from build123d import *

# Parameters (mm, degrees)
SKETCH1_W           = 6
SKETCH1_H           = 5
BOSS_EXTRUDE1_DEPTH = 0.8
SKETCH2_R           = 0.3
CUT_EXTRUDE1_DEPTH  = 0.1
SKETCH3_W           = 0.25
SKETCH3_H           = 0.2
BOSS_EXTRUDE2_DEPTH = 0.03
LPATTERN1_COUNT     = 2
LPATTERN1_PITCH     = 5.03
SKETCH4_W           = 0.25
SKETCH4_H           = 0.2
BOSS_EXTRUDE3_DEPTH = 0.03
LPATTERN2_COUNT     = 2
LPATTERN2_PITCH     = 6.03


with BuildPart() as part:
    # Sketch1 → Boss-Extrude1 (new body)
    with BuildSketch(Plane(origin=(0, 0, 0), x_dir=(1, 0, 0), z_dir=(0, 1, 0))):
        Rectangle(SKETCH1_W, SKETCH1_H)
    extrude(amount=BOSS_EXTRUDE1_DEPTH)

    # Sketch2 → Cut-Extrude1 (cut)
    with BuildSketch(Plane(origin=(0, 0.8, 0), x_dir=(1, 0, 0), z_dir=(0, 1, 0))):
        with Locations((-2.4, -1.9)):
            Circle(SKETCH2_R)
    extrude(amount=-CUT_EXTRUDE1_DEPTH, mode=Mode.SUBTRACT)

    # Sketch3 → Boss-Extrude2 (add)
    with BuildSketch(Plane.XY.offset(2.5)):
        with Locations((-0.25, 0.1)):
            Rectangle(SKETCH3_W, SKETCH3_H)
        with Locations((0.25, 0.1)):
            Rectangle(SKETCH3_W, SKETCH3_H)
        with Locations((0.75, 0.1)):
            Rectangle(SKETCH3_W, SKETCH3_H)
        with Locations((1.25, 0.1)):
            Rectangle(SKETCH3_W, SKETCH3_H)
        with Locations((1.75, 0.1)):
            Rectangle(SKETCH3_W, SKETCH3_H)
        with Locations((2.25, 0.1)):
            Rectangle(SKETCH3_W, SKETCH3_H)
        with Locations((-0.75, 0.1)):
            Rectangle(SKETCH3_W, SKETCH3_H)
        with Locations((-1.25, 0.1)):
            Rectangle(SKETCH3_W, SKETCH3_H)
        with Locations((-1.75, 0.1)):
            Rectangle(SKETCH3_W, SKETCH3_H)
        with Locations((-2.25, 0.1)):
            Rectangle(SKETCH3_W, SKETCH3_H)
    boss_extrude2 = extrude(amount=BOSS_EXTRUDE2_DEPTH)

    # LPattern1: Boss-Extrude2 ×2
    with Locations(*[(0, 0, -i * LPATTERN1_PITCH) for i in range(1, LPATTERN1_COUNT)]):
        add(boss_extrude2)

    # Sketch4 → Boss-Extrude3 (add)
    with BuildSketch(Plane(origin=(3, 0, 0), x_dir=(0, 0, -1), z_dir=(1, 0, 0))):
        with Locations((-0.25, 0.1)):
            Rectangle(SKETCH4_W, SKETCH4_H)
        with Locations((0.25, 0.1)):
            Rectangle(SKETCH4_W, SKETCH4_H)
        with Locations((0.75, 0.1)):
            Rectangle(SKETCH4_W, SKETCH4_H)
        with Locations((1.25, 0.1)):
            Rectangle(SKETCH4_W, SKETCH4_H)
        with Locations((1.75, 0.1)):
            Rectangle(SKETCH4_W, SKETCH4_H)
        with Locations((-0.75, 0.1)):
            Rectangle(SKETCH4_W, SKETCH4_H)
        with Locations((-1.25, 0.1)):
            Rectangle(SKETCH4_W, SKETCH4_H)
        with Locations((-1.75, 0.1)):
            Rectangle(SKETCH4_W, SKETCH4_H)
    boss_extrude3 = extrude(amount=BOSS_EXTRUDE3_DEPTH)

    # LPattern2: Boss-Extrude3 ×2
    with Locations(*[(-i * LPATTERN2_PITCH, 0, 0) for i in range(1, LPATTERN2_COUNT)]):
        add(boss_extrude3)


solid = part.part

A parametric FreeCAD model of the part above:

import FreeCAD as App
import Part
import Sketcher

doc = App.newDocument("Part")
body = doc.addObject("PartDesign::Body", "Body")

# Sketch on XZ plane
sketch1 = body.newObject("Sketcher::SketchObject", "Sketch")
sketch1.AttachmentSupport = (doc.getObject("XZ_Plane"), [""])
sketch1.MapMode = "FlatFace"
sketch1.addGeometry([
    Part.LineSegment(App.Vector(-3, -2, 0), App.Vector(-3, 2, 0)),
    Part.LineSegment(App.Vector(-3, 2, 0), App.Vector(3, 2, 0)),
    Part.LineSegment(App.Vector(3, 2, 0), App.Vector(3, -2, 0)),
    Part.LineSegment(App.Vector(3, -2, 0), App.Vector(-3, -2, 0)),
], False)
sketch1.addConstraint([
    Sketcher.Constraint("Coincident", 0, 2, 1, 1),
    Sketcher.Constraint("Coincident", 1, 2, 2, 1),
    Sketcher.Constraint("Coincident", 2, 2, 3, 1),
    Sketcher.Constraint("Coincident", 3, 2, 0, 1),
    Sketcher.Constraint("Vertical", 0),
    Sketcher.Constraint("Horizontal", 1),
    Sketcher.Constraint("Vertical", 2),
    Sketcher.Constraint("Horizontal", 3),
    Sketcher.Constraint("Symmetric", 0, 2, 2, 2, -1, 1),
    Sketcher.Constraint("DistanceX", 1, 1, 1, 2, 6.0),
    Sketcher.Constraint("DistanceY", 0, 1, 0, 2, 5.0),
])
pad1 = body.newObject("PartDesign::Pad", "Pad")
pad1.Profile = sketch1
pad1.Length = 0.8
pad1.Reversed = True

# Sketch on XZ plane
sketch2 = body.newObject("Sketcher::SketchObject", "Sketch001")
sketch2.AttachmentSupport = (doc.getObject("XZ_Plane"), [""])
sketch2.MapMode = "FlatFace"
sketch2.AttachmentOffset = App.Placement(App.Vector(0, 0, -0.8), App.Rotation())
sketch2.addGeometry(Part.Circle(App.Vector(-2.4, 1.9, 0), App.Vector(0, 0, 1), 0.3), False)
sketch2.addConstraint([
    Sketcher.Constraint("Diameter", 0, 0.6),
    Sketcher.Constraint("DistanceX", 0, 3, -1, 1, 2.4),
    Sketcher.Constraint("DistanceY", -1, 1, 0, 3, 1.9),
])
pocket1 = body.newObject("PartDesign::Pocket", "Pocket")
pocket1.Profile = sketch2
pocket1.Length = 0.1
pocket1.Reversed = True

# Sketch on XY plane
sketch3 = body.newObject("Sketcher::SketchObject", "Sketch002")
sketch3.AttachmentSupport = (doc.getObject("XY_Plane"), [""])
sketch3.MapMode = "FlatFace"
sketch3.AttachmentOffset = App.Placement(App.Vector(0, 0, 2.5), App.Rotation())
sketch3.addGeometry([
    Part.LineSegment(App.Vector(-0.38, 0.2, 0), App.Vector(-0.38, 0, 0)),  # 0
    Part.LineSegment(App.Vector(-0.38, 0, 0), App.Vector(-0.12, 0, 0)),  # 1
    Part.LineSegment(App.Vector(-0.12, 0, 0), App.Vector(-0.12, 0.2, 0)),  # 2
    Part.LineSegment(App.Vector(-0.12, 0.2, 0), App.Vector(-0.38, 0.2, 0)),  # 3
    Part.LineSegment(App.Vector(0.12, 0.2, 0), App.Vector(0.12, 0, 0)),  # 4
    Part.LineSegment(App.Vector(0.12, 0, 0), App.Vector(0.38, 0, 0)),  # 5
    Part.LineSegment(App.Vector(0.38, 0, 0), App.Vector(0.38, 0.2, 0)),  # 6
    Part.LineSegment(App.Vector(0.38, 0.2, 0), App.Vector(0.12, 0.2, 0)),  # 7
    Part.LineSegment(App.Vector(0.62, 0.2, 0), App.Vector(0.62, 0, 0)),  # 8
    Part.LineSegment(App.Vector(0.62, 0, 0), App.Vector(0.88, 0, 0)),  # 9
    Part.LineSegment(App.Vector(0.88, 0, 0), App.Vector(0.88, 0.2, 0)),  # 10
    Part.LineSegment(App.Vector(0.88, 0.2, 0), App.Vector(0.62, 0.2, 0)),  # 11
    Part.LineSegment(App.Vector(1.12, 0.2, 0), App.Vector(1.12, 0, 0)),  # 12
    Part.LineSegment(App.Vector(1.12, 0, 0), App.Vector(1.38, 0, 0)),  # 13
    Part.LineSegment(App.Vector(1.38, 0, 0), App.Vector(1.38, 0.2, 0)),  # 14
    Part.LineSegment(App.Vector(1.38, 0.2, 0), App.Vector(1.12, 0.2, 0)),  # 15
    Part.LineSegment(App.Vector(1.62, 0.2, 0), App.Vector(1.62, 0, 0)),  # 16
    Part.LineSegment(App.Vector(1.62, 0, 0), App.Vector(1.88, 0, 0)),  # 17
    Part.LineSegment(App.Vector(1.88, 0, 0), App.Vector(1.88, 0.2, 0)),  # 18
    Part.LineSegment(App.Vector(1.88, 0.2, 0), App.Vector(1.62, 0.2, 0)),  # 19
    Part.LineSegment(App.Vector(2.12, 0.2, 0), App.Vector(2.12, 0, 0)),  # 20
    Part.LineSegment(App.Vector(2.12, 0, 0), App.Vector(2.38, 0, 0)),  # 21
    Part.LineSegment(App.Vector(2.38, 0, 0), App.Vector(2.38, 0.2, 0)),  # 22
    Part.LineSegment(App.Vector(2.38, 0.2, 0), App.Vector(2.12, 0.2, 0)),  # 23
    Part.LineSegment(App.Vector(-0.88, 0.2, 0), App.Vector(-0.88, 0, 0)),  # 24
    Part.LineSegment(App.Vector(-0.88, 0, 0), App.Vector(-0.62, 0, 0)),  # 25
    Part.LineSegment(App.Vector(-0.62, 0, 0), App.Vector(-0.62, 0.2, 0)),  # 26
    Part.LineSegment(App.Vector(-0.62, 0.2, 0), App.Vector(-0.88, 0.2, 0)),  # 27
    Part.LineSegment(App.Vector(-1.38, 0.2, 0), App.Vector(-1.38, 0, 0)),  # 28
    Part.LineSegment(App.Vector(-1.38, 0, 0), App.Vector(-1.12, 0, 0)),  # 29
    Part.LineSegment(App.Vector(-1.12, 0, 0), App.Vector(-1.12, 0.2, 0)),  # 30
    Part.LineSegment(App.Vector(-1.12, 0.2, 0), App.Vector(-1.38, 0.2, 0)),  # 31
    Part.LineSegment(App.Vector(-1.88, 0.2, 0), App.Vector(-1.88, 0, 0)),  # 32
    Part.LineSegment(App.Vector(-1.88, 0, 0), App.Vector(-1.62, 0, 0)),  # 33
    Part.LineSegment(App.Vector(-1.62, 0, 0), App.Vector(-1.62, 0.2, 0)),  # 34
    Part.LineSegment(App.Vector(-1.62, 0.2, 0), App.Vector(-1.88, 0.2, 0)),  # 35
    Part.LineSegment(App.Vector(-2.38, 0.2, 0), App.Vector(-2.38, 0, 0)),  # 36
    Part.LineSegment(App.Vector(-2.38, 0, 0), App.Vector(-2.12, 0, 0)),  # 37
    Part.LineSegment(App.Vector(-2.12, 0, 0), App.Vector(-2.12, 0.2, 0)),  # 38
    Part.LineSegment(App.Vector(-2.12, 0.2, 0), App.Vector(-2.38, 0.2, 0)),  # 39
], False)
sketch3.addConstraint([
    Sketcher.Constraint("Coincident", 0, 2, 1, 1),
    Sketcher.Constraint("Coincident", 1, 2, 2, 1),
    Sketcher.Constraint("Coincident", 2, 2, 3, 1),
    Sketcher.Constraint("Coincident", 3, 2, 0, 1),
    Sketcher.Constraint("Coincident", 4, 2, 5, 1),
    Sketcher.Constraint("Coincident", 5, 2, 6, 1),
    Sketcher.Constraint("Coincident", 6, 2, 7, 1),
    Sketcher.Constraint("Coincident", 7, 2, 4, 1),
    Sketcher.Constraint("Coincident", 8, 2, 9, 1),
    Sketcher.Constraint("Coincident", 9, 2, 10, 1),
    Sketcher.Constraint("Coincident", 10, 2, 11, 1),
    Sketcher.Constraint("Coincident", 11, 2, 8, 1),
    Sketcher.Constraint("Coincident", 12, 2, 13, 1),
    Sketcher.Constraint("Coincident", 13, 2, 14, 1),
    Sketcher.Constraint("Coincident", 14, 2, 15, 1),
    Sketcher.Constraint("Coincident", 15, 2, 12, 1),
    Sketcher.Constraint("Coincident", 16, 2, 17, 1),
    Sketcher.Constraint("Coincident", 17, 2, 18, 1),
    Sketcher.Constraint("Coincident", 18, 2, 19, 1),
    Sketcher.Constraint("Coincident", 19, 2, 16, 1),
    Sketcher.Constraint("Coincident", 20, 2, 21, 1),
    Sketcher.Constraint("Coincident", 21, 2, 22, 1),
    Sketcher.Constraint("Coincident", 22, 2, 23, 1),
    Sketcher.Constraint("Coincident", 23, 2, 20, 1),
    Sketcher.Constraint("Coincident", 24, 2, 25, 1),
    Sketcher.Constraint("Coincident", 25, 2, 26, 1),
    Sketcher.Constraint("Coincident", 26, 2, 27, 1),
    Sketcher.Constraint("Coincident", 27, 2, 24, 1),
    Sketcher.Constraint("Coincident", 28, 2, 29, 1),
    Sketcher.Constraint("Coincident", 29, 2, 30, 1),
    Sketcher.Constraint("Coincident", 30, 2, 31, 1),
    Sketcher.Constraint("Coincident", 31, 2, 28, 1),
    Sketcher.Constraint("Coincident", 32, 2, 33, 1),
    Sketcher.Constraint("Coincident", 33, 2, 34, 1),
    Sketcher.Constraint("Coincident", 34, 2, 35, 1),
    Sketcher.Constraint("Coincident", 35, 2, 32, 1),
    Sketcher.Constraint("Coincident", 36, 2, 37, 1),
    Sketcher.Constraint("Coincident", 37, 2, 38, 1),
    Sketcher.Constraint("Coincident", 38, 2, 39, 1),
    Sketcher.Constraint("Coincident", 39, 2, 36, 1),
    Sketcher.Constraint("Vertical", 0),
    Sketcher.Constraint("Horizontal", 1),
    Sketcher.Constraint("Vertical", 2),
    Sketcher.Constraint("Horizontal", 3),
    Sketcher.Constraint("Vertical", 4),
    Sketcher.Constraint("Horizontal", 5),
    Sketcher.Constraint("Vertical", 6),
    Sketcher.Constraint("Horizontal", 7),
    Sketcher.Constraint("Vertical", 8),
    Sketcher.Constraint("Horizontal", 9),
    Sketcher.Constraint("Vertical", 10),
    Sketcher.Constraint("Horizontal", 11),
    Sketcher.Constraint("Vertical", 12),
    Sketcher.Constraint("Horizontal", 13),
    Sketcher.Constraint("Vertical", 14),
    Sketcher.Constraint("Horizontal", 15),
    Sketcher.Constraint("Vertical", 16),
    Sketcher.Constraint("Horizontal", 17),
    Sketcher.Constraint("Vertical", 18),
    Sketcher.Constraint("Horizontal", 19),
    Sketcher.Constraint("Vertical", 20),
    Sketcher.Constraint("Horizontal", 21),
    Sketcher.Constraint("Vertical", 22),
    Sketcher.Constraint("Horizontal", 23),
    Sketcher.Constraint("Vertical", 24),
    Sketcher.Constraint("Horizontal", 25),
    Sketcher.Constraint("Vertical", 26),
    Sketcher.Constraint("Horizontal", 27),
    Sketcher.Constraint("Vertical", 28),
    Sketcher.Constraint("Horizontal", 29),
    Sketcher.Constraint("Vertical", 30),
    Sketcher.Constraint("Horizontal", 31),
    Sketcher.Constraint("Vertical", 32),
    Sketcher.Constraint("Horizontal", 33),
    Sketcher.Constraint("Vertical", 34),
    Sketcher.Constraint("Horizontal", 35),
    Sketcher.Constraint("Vertical", 36),
    Sketcher.Constraint("Horizontal", 37),
    Sketcher.Constraint("Vertical", 38),
    Sketcher.Constraint("Horizontal", 39),
    Sketcher.Constraint("Symmetric", 1, 2, 4, 2, -1, 1),
    Sketcher.Constraint("Symmetric", 9, 2, 24, 2, -1, 1),
    Sketcher.Constraint("Symmetric", 13, 2, 28, 2, -1, 1),
    Sketcher.Constraint("Symmetric", 17, 2, 32, 2, -1, 1),
    Sketcher.Constraint("Symmetric", 21, 2, 36, 2, -1, 1),
    Sketcher.Constraint("Symmetric", 0, 2, 5, 2, -2),
    Sketcher.Constraint("Symmetric", 8, 2, 25, 2, -2),
    Sketcher.Constraint("Symmetric", 12, 2, 29, 2, -2),
    Sketcher.Constraint("Symmetric", 16, 2, 33, 2, -2),
    Sketcher.Constraint("Symmetric", 20, 2, 37, 2, -2),
    Sketcher.Constraint("Horizontal", 3, 2, 6, 2),
    Sketcher.Constraint("Horizontal", 7, 2, 10, 2),
    Sketcher.Constraint("Horizontal", 11, 2, 14, 2),
    Sketcher.Constraint("Horizontal", 15, 2, 18, 2),
    Sketcher.Constraint("Horizontal", 19, 2, 22, 2),
    Sketcher.Constraint("Horizontal", 23, 2, 26, 2),
    Sketcher.Constraint("Horizontal", 27, 2, 30, 2),
    Sketcher.Constraint("Horizontal", 31, 2, 34, 2),
    Sketcher.Constraint("Horizontal", 35, 2, 38, 2),
    Sketcher.Constraint("Equal", 7, 9),
    Sketcher.Constraint("Equal", 11, 13),
    Sketcher.Constraint("Equal", 15, 17),
    Sketcher.Constraint("Equal", 19, 21),
    Sketcher.Constraint("DistanceY", 0, 2, 0, 1, 0.2),
    Sketcher.Constraint("DistanceX", 24, 2, 4, 2, 1.0),
    Sketcher.Constraint("DistanceX", 28, 2, 0, 2, 1.0),
    Sketcher.Constraint("DistanceX", 32, 2, 24, 2, 1.0),
    Sketcher.Constraint("DistanceX", 36, 2, 28, 2, 1.0),
    Sketcher.Constraint("DistanceX", 1, 1, 1, 2, 0.25),
    Sketcher.Constraint("DistanceX", 0, 2, 4, 2, 0.5),
])
pad2 = body.newObject("PartDesign::Pad", "Pad001")
pad2.Profile = sketch3
pad2.Length = 0.03
doc.recompute()

linearpattern = body.newObject("PartDesign::LinearPattern", "LinearPattern")
linearpattern.Originals = [pad2]
linearpattern.Direction = (doc.getObject("Z_Axis"), [""])
linearpattern.Mode = "offset"
linearpattern.Offset = 5.03
linearpattern.Occurrences = 2
linearpattern.Reversed = True
body.Tip = linearpattern

# Sketch on YZ plane
sketch4 = body.newObject("Sketcher::SketchObject", "Sketch003")
sketch4.AttachmentSupport = (doc.getObject("YZ_Plane"), [""])
sketch4.MapMode = "FlatFace"
sketch4.AttachmentOffset = App.Placement(App.Vector(0, 0, 3), App.Rotation())
sketch4.addGeometry([
    Part.LineSegment(App.Vector(0.2, 0.38, 0), App.Vector(0, 0.38, 0)),  # 0
    Part.LineSegment(App.Vector(0, 0.38, 0), App.Vector(0, 0.12, 0)),  # 1
    Part.LineSegment(App.Vector(0, 0.12, 0), App.Vector(0.2, 0.12, 0)),  # 2
    Part.LineSegment(App.Vector(0.2, 0.12, 0), App.Vector(0.2, 0.38, 0)),  # 3
    Part.LineSegment(App.Vector(0.2, -0.12, 0), App.Vector(0, -0.12, 0)),  # 4
    Part.LineSegment(App.Vector(0, -0.12, 0), App.Vector(0, -0.38, 0)),  # 5
    Part.LineSegment(App.Vector(0, -0.38, 0), App.Vector(0.2, -0.38, 0)),  # 6
    Part.LineSegment(App.Vector(0.2, -0.38, 0), App.Vector(0.2, -0.12, 0)),  # 7
    Part.LineSegment(App.Vector(0.2, -0.62, 0), App.Vector(0, -0.62, 0)),  # 8
    Part.LineSegment(App.Vector(0, -0.62, 0), App.Vector(0, -0.88, 0)),  # 9
    Part.LineSegment(App.Vector(0, -0.88, 0), App.Vector(0.2, -0.88, 0)),  # 10
    Part.LineSegment(App.Vector(0.2, -0.88, 0), App.Vector(0.2, -0.62, 0)),  # 11
    Part.LineSegment(App.Vector(0.2, -1.12, 0), App.Vector(0, -1.12, 0)),  # 12
    Part.LineSegment(App.Vector(0, -1.12, 0), App.Vector(0, -1.38, 0)),  # 13
    Part.LineSegment(App.Vector(0, -1.38, 0), App.Vector(0.2, -1.38, 0)),  # 14
    Part.LineSegment(App.Vector(0.2, -1.38, 0), App.Vector(0.2, -1.12, 0)),  # 15
    Part.LineSegment(App.Vector(0.2, -1.62, 0), App.Vector(0, -1.62, 0)),  # 16
    Part.LineSegment(App.Vector(0, -1.62, 0), App.Vector(0, -1.88, 0)),  # 17
    Part.LineSegment(App.Vector(0, -1.88, 0), App.Vector(0.2, -1.88, 0)),  # 18
    Part.LineSegment(App.Vector(0.2, -1.88, 0), App.Vector(0.2, -1.62, 0)),  # 19
    Part.LineSegment(App.Vector(0.2, 0.88, 0), App.Vector(0, 0.88, 0)),  # 20
    Part.LineSegment(App.Vector(0, 0.88, 0), App.Vector(0, 0.62, 0)),  # 21
    Part.LineSegment(App.Vector(0, 0.62, 0), App.Vector(0.2, 0.62, 0)),  # 22
    Part.LineSegment(App.Vector(0.2, 0.62, 0), App.Vector(0.2, 0.88, 0)),  # 23
    Part.LineSegment(App.Vector(0.2, 1.38, 0), App.Vector(0, 1.38, 0)),  # 24
    Part.LineSegment(App.Vector(0, 1.38, 0), App.Vector(0, 1.12, 0)),  # 25
    Part.LineSegment(App.Vector(0, 1.12, 0), App.Vector(0.2, 1.12, 0)),  # 26
    Part.LineSegment(App.Vector(0.2, 1.12, 0), App.Vector(0.2, 1.38, 0)),  # 27
    Part.LineSegment(App.Vector(0.2, 1.88, 0), App.Vector(0, 1.88, 0)),  # 28
    Part.LineSegment(App.Vector(0, 1.88, 0), App.Vector(0, 1.62, 0)),  # 29
    Part.LineSegment(App.Vector(0, 1.62, 0), App.Vector(0.2, 1.62, 0)),  # 30
    Part.LineSegment(App.Vector(0.2, 1.62, 0), App.Vector(0.2, 1.88, 0)),  # 31
], False)
sketch4.addConstraint([
    Sketcher.Constraint("Coincident", 0, 2, 1, 1),
    Sketcher.Constraint("Coincident", 1, 2, 2, 1),
    Sketcher.Constraint("Coincident", 2, 2, 3, 1),
    Sketcher.Constraint("Coincident", 3, 2, 0, 1),
    Sketcher.Constraint("Coincident", 4, 2, 5, 1),
    Sketcher.Constraint("Coincident", 5, 2, 6, 1),
    Sketcher.Constraint("Coincident", 6, 2, 7, 1),
    Sketcher.Constraint("Coincident", 7, 2, 4, 1),
    Sketcher.Constraint("Coincident", 8, 2, 9, 1),
    Sketcher.Constraint("Coincident", 9, 2, 10, 1),
    Sketcher.Constraint("Coincident", 10, 2, 11, 1),
    Sketcher.Constraint("Coincident", 11, 2, 8, 1),
    Sketcher.Constraint("Coincident", 12, 2, 13, 1),
    Sketcher.Constraint("Coincident", 13, 2, 14, 1),
    Sketcher.Constraint("Coincident", 14, 2, 15, 1),
    Sketcher.Constraint("Coincident", 15, 2, 12, 1),
    Sketcher.Constraint("Coincident", 16, 2, 17, 1),
    Sketcher.Constraint("Coincident", 17, 2, 18, 1),
    Sketcher.Constraint("Coincident", 18, 2, 19, 1),
    Sketcher.Constraint("Coincident", 19, 2, 16, 1),
    Sketcher.Constraint("Coincident", 20, 2, 21, 1),
    Sketcher.Constraint("Coincident", 21, 2, 22, 1),
    Sketcher.Constraint("Coincident", 22, 2, 23, 1),
    Sketcher.Constraint("Coincident", 23, 2, 20, 1),
    Sketcher.Constraint("Coincident", 24, 2, 25, 1),
    Sketcher.Constraint("Coincident", 25, 2, 26, 1),
    Sketcher.Constraint("Coincident", 26, 2, 27, 1),
    Sketcher.Constraint("Coincident", 27, 2, 24, 1),
    Sketcher.Constraint("Coincident", 28, 2, 29, 1),
    Sketcher.Constraint("Coincident", 29, 2, 30, 1),
    Sketcher.Constraint("Coincident", 30, 2, 31, 1),
    Sketcher.Constraint("Coincident", 31, 2, 28, 1),
    Sketcher.Constraint("Horizontal", 0),
    Sketcher.Constraint("Vertical", 1),
    Sketcher.Constraint("Horizontal", 2),
    Sketcher.Constraint("Vertical", 3),
    Sketcher.Constraint("Horizontal", 4),
    Sketcher.Constraint("Vertical", 5),
    Sketcher.Constraint("Horizontal", 6),
    Sketcher.Constraint("Vertical", 7),
    Sketcher.Constraint("Horizontal", 8),
    Sketcher.Constraint("Vertical", 9),
    Sketcher.Constraint("Horizontal", 10),
    Sketcher.Constraint("Vertical", 11),
    Sketcher.Constraint("Horizontal", 12),
    Sketcher.Constraint("Vertical", 13),
    Sketcher.Constraint("Horizontal", 14),
    Sketcher.Constraint("Vertical", 15),
    Sketcher.Constraint("Horizontal", 16),
    Sketcher.Constraint("Vertical", 17),
    Sketcher.Constraint("Horizontal", 18),
    Sketcher.Constraint("Vertical", 19),
    Sketcher.Constraint("Horizontal", 20),
    Sketcher.Constraint("Vertical", 21),
    Sketcher.Constraint("Horizontal", 22),
    Sketcher.Constraint("Vertical", 23),
    Sketcher.Constraint("Horizontal", 24),
    Sketcher.Constraint("Vertical", 25),
    Sketcher.Constraint("Horizontal", 26),
    Sketcher.Constraint("Vertical", 27),
    Sketcher.Constraint("Horizontal", 28),
    Sketcher.Constraint("Vertical", 29),
    Sketcher.Constraint("Horizontal", 30),
    Sketcher.Constraint("Vertical", 31),
    Sketcher.Constraint("Symmetric", 1, 2, 4, 2, -1, 1),
    Sketcher.Constraint("Symmetric", 9, 2, 20, 2, -1, 1),
    Sketcher.Constraint("Symmetric", 13, 2, 24, 2, -1, 1),
    Sketcher.Constraint("Symmetric", 17, 2, 28, 2, -1, 1),
    Sketcher.Constraint("Symmetric", 0, 2, 5, 2, -1),
    Sketcher.Constraint("Symmetric", 8, 2, 21, 2, -1),
    Sketcher.Constraint("Symmetric", 12, 2, 25, 2, -1),
    Sketcher.Constraint("Symmetric", 16, 2, 29, 2, -1),
    Sketcher.Constraint("Vertical", 3, 2, 6, 2),
    Sketcher.Constraint("Vertical", 7, 2, 10, 2),
    Sketcher.Constraint("Vertical", 11, 2, 14, 2),
    Sketcher.Constraint("Vertical", 15, 2, 18, 2),
    Sketcher.Constraint("Vertical", 19, 2, 22, 2),
    Sketcher.Constraint("Vertical", 23, 2, 26, 2),
    Sketcher.Constraint("Vertical", 27, 2, 30, 2),
    Sketcher.Constraint("Equal", 7, 9),
    Sketcher.Constraint("Equal", 11, 13),
    Sketcher.Constraint("Equal", 15, 17),
    Sketcher.Constraint("DistanceX", 0, 2, 0, 1, 0.2),
    Sketcher.Constraint("DistanceY", 4, 2, 20, 2, 1.0),
    Sketcher.Constraint("DistanceY", 0, 2, 24, 2, 1.0),
    Sketcher.Constraint("DistanceY", 20, 2, 28, 2, 1.0),
    Sketcher.Constraint("DistanceY", 1, 2, 1, 1, 0.25),
    Sketcher.Constraint("DistanceY", 4, 2, 0, 2, 0.5),
])
pad3 = body.newObject("PartDesign::Pad", "Pad002")
pad3.Profile = sketch4
pad3.Length = 0.03
doc.recompute()

linearpattern2 = body.newObject("PartDesign::LinearPattern", "LinearPattern001")
linearpattern2.Originals = [pad3]
linearpattern2.Direction = (doc.getObject("X_Axis"), [""])
linearpattern2.Mode = "offset"
linearpattern2.Offset = 6.03
linearpattern2.Occurrences = 2
linearpattern2.Reversed = True
body.Tip = linearpattern2

doc.recompute()
